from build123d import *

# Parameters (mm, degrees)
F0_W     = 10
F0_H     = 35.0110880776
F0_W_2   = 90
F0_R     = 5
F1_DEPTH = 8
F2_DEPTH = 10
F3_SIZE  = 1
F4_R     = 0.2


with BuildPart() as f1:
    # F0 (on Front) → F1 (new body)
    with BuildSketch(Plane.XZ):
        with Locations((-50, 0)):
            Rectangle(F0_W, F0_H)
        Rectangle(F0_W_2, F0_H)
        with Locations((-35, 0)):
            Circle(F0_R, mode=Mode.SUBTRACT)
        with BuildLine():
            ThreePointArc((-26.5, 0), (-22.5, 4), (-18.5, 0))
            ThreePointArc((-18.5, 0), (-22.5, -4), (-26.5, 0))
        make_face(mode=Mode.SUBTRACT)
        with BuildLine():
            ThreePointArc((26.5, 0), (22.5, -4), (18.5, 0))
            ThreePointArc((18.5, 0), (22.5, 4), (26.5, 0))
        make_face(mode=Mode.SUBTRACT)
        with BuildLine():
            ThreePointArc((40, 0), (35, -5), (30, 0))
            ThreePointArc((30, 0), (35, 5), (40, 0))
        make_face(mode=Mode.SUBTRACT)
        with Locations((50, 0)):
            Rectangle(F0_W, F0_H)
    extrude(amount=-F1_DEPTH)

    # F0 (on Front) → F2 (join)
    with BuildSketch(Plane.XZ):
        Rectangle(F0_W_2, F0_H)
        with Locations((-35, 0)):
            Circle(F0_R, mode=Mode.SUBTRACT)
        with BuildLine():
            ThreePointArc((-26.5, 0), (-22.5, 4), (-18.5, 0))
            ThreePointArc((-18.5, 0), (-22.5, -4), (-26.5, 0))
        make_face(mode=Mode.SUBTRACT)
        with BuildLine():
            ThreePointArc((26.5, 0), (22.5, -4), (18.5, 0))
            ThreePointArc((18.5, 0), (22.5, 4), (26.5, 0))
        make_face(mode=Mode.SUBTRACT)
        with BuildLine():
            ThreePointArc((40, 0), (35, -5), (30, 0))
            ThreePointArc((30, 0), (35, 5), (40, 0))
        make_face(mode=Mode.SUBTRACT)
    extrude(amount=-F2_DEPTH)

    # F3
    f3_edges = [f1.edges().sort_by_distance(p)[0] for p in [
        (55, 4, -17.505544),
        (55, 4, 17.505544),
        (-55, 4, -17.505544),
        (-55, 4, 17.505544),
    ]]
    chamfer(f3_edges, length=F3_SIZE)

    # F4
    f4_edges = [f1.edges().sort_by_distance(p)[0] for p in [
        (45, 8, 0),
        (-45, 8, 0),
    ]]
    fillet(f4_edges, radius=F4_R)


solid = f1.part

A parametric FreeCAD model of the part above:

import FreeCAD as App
import Part
import Sketcher

V = App.Vector
Q = App.Units.Quantity


def edges_at(feature, points):
    """Names of the edges that pass closest to the given points."""
    edges = feature.Shape.Edges
    near = lambda p: min(range(len(edges)), key=lambda i: edges[i].distToShape(Part.Vertex(*p))[0])
    return sorted({f"Edge{near(p) + 1}" for p in points})

doc = App.newDocument("Part")
body = doc.addObject("PartDesign::Body", "Body")

# Sketch on XZ plane
sketch1 = body.newObject("Sketcher::SketchObject", "Sketch")
sketch1.AttachmentSupport = (doc.getObject("XZ_Plane"), [""])
sketch1.MapMode = "FlatFace"
sketch1.addGeometry([
    Part.LineSegment(V(-55, 17.5, 0), V(-55, -17.5, 0)),  # 0
    Part.LineSegment(V(-55, -17.5, 0), V(55, -17.5, 0)),  # 1
    Part.LineSegment(V(55, -17.5, 0), V(55, 17.5, 0)),  # 2
    Part.LineSegment(V(55, 17.5, 0), V(-55, 17.5, 0)),  # 3
    Part.Circle(V(-35, 0, 0), V(0, 0, 1), 5),  # 4
    Part.Circle(V(-22.5, 0, 0), V(0, 0, 1), 4),  # 5
    Part.Circle(V(22.5, 0, 0), V(0, 0, 1), 4),  # 6
    Part.Circle(V(35, 0, 0), V(0, 0, 1), 5),  # 7
], False)
sketch1.addConstraint([
    Sketcher.Constraint("Coincident", 0, 2, 1, 1),
    Sketcher.Constraint("Coincident", 1, 2, 2, 1),
    Sketcher.Constraint("Coincident", 2, 2, 3, 1),
    Sketcher.Constraint("Coincident", 3, 2, 0, 1),
    Sketcher.Constraint("Vertical", 0),
    Sketcher.Constraint("Horizontal", 1),
    Sketcher.Constraint("Vertical", 2),
    Sketcher.Constraint("Horizontal", 3),
    Sketcher.Constraint("Equal", 5, 6),
    Sketcher.Constraint("Equal", 4, 7),
    Sketcher.Constraint("Symmetric", 5, 3, 6, 3, -1, 1),
    Sketcher.Constraint("Symmetric", 4, 3, 7, 3, -1, 1),
    Sketcher.Constraint("Symmetric", 0, 2, 2, 2, -1, 1),
    Sketcher.Constraint("PointOnObject", 4, 3, -1),
    Sketcher.Constraint("PointOnObject", 5, 3, -1),
    Sketcher.Constraint("Diameter", 4, Q("10 mm")),
    Sketcher.Constraint("Diameter", 5, Q("8 mm")),
    Sketcher.Constraint("DistanceX", 1, 1, 1, 2, Q("110 mm")),
    Sketcher.Constraint("DistanceX", 4, 3, -1, 1, Q("35 mm")),
    Sketcher.Constraint("DistanceX", 5, 3, 6, 3, Q("45 mm")),
    Sketcher.Constraint("DistanceY", 0, 2, 0, 1, Q("35.011088 mm")),
])
pad1 = body.newObject("PartDesign::Pad", "Pad")
pad1.Profile = sketch1
pad1.Length = 8
pad1.Reversed = True

# Sketch on XZ plane
sketch2 = body.newObject("Sketcher::SketchObject", "Sketch001")
sketch2.AttachmentSupport = (doc.getObject("XZ_Plane"), [""])
sketch2.MapMode = "FlatFace"
sketch2.addGeometry([
    Part.LineSegment(V(-45, 17.5, 0), V(-45, -17.5, 0)),  # 0
    Part.LineSegment(V(-45, -17.5, 0), V(45, -17.5, 0)),  # 1
    Part.LineSegment(V(45, -17.5, 0), V(45, 17.5, 0)),  # 2
    Part.LineSegment(V(45, 17.5, 0), V(-45, 17.5, 0)),  # 3
    Part.Circle(V(-35, 0, 0), V(0, 0, 1), 5),  # 4
    Part.Circle(V(-22.5, 0, 0), V(0, 0, 1), 4),  # 5
    Part.Circle(V(22.5, 0, 0), V(0, 0, 1), 4),  # 6
    Part.Circle(V(35, 0, 0), V(0, 0, 1), 5),  # 7
], False)
sketch2.addConstraint([
    Sketcher.Constraint("Coincident", 0, 2, 1, 1),
    Sketcher.Constraint("Coincident", 1, 2, 2, 1),
    Sketcher.Constraint("Coincident", 2, 2, 3, 1),
    Sketcher.Constraint("Coincident", 3, 2, 0, 1),
    Sketcher.Constraint("Vertical", 0),
    Sketcher.Constraint("Horizontal", 1),
    Sketcher.Constraint("Vertical", 2),
    Sketcher.Constraint("Horizontal", 3),
    Sketcher.Constraint("Equal", 5, 6),
    Sketcher.Constraint("Equal", 4, 7),
    Sketcher.Constraint("Symmetric", 5, 3, 6, 3, -1, 1),
    Sketcher.Constraint("Symmetric", 4, 3, 7, 3, -1, 1),
    Sketcher.Constraint("Symmetric", 0, 2, 2, 2, -1, 1),
    Sketcher.Constraint("PointOnObject", 4, 3, -1),
    Sketcher.Constraint("PointOnObject", 5, 3, -1),
    Sketcher.Constraint("Diameter", 4, Q("10 mm")),
    Sketcher.Constraint("Diameter", 5, Q("8 mm")),
    Sketcher.Constraint("DistanceX", 1, 1, 1, 2, Q("90 mm")),
    Sketcher.Constraint("DistanceX", 4, 3, -1, 1, Q("35 mm")),
    Sketcher.Constraint("DistanceX", 5, 3, 6, 3, Q("45 mm")),
    Sketcher.Constraint("DistanceY", 0, 2, 0, 1, Q("35.011088 mm")),
])
pad2 = body.newObject("PartDesign::Pad", "Pad001")
pad2.Profile = sketch2
pad2.Length = 10
pad2.Reversed = True
doc.recompute()

chamfer = body.newObject("PartDesign::Chamfer", "Chamfer")
chamfer.Base = (pad2, edges_at(pad2, [
    (55, 4, -17.506),
    (55, 4, 17.506),
    (-55, 4, -17.506),
    (-55, 4, 17.506),
]))
chamfer.Size = 1
doc.recompute()

fillet = body.newObject("PartDesign::Fillet", "Fillet")
fillet.Base = (chamfer, edges_at(chamfer, [(45, 8, 0), (-45, 8, 0)]))
fillet.Radius = 0.2

doc.recompute()
